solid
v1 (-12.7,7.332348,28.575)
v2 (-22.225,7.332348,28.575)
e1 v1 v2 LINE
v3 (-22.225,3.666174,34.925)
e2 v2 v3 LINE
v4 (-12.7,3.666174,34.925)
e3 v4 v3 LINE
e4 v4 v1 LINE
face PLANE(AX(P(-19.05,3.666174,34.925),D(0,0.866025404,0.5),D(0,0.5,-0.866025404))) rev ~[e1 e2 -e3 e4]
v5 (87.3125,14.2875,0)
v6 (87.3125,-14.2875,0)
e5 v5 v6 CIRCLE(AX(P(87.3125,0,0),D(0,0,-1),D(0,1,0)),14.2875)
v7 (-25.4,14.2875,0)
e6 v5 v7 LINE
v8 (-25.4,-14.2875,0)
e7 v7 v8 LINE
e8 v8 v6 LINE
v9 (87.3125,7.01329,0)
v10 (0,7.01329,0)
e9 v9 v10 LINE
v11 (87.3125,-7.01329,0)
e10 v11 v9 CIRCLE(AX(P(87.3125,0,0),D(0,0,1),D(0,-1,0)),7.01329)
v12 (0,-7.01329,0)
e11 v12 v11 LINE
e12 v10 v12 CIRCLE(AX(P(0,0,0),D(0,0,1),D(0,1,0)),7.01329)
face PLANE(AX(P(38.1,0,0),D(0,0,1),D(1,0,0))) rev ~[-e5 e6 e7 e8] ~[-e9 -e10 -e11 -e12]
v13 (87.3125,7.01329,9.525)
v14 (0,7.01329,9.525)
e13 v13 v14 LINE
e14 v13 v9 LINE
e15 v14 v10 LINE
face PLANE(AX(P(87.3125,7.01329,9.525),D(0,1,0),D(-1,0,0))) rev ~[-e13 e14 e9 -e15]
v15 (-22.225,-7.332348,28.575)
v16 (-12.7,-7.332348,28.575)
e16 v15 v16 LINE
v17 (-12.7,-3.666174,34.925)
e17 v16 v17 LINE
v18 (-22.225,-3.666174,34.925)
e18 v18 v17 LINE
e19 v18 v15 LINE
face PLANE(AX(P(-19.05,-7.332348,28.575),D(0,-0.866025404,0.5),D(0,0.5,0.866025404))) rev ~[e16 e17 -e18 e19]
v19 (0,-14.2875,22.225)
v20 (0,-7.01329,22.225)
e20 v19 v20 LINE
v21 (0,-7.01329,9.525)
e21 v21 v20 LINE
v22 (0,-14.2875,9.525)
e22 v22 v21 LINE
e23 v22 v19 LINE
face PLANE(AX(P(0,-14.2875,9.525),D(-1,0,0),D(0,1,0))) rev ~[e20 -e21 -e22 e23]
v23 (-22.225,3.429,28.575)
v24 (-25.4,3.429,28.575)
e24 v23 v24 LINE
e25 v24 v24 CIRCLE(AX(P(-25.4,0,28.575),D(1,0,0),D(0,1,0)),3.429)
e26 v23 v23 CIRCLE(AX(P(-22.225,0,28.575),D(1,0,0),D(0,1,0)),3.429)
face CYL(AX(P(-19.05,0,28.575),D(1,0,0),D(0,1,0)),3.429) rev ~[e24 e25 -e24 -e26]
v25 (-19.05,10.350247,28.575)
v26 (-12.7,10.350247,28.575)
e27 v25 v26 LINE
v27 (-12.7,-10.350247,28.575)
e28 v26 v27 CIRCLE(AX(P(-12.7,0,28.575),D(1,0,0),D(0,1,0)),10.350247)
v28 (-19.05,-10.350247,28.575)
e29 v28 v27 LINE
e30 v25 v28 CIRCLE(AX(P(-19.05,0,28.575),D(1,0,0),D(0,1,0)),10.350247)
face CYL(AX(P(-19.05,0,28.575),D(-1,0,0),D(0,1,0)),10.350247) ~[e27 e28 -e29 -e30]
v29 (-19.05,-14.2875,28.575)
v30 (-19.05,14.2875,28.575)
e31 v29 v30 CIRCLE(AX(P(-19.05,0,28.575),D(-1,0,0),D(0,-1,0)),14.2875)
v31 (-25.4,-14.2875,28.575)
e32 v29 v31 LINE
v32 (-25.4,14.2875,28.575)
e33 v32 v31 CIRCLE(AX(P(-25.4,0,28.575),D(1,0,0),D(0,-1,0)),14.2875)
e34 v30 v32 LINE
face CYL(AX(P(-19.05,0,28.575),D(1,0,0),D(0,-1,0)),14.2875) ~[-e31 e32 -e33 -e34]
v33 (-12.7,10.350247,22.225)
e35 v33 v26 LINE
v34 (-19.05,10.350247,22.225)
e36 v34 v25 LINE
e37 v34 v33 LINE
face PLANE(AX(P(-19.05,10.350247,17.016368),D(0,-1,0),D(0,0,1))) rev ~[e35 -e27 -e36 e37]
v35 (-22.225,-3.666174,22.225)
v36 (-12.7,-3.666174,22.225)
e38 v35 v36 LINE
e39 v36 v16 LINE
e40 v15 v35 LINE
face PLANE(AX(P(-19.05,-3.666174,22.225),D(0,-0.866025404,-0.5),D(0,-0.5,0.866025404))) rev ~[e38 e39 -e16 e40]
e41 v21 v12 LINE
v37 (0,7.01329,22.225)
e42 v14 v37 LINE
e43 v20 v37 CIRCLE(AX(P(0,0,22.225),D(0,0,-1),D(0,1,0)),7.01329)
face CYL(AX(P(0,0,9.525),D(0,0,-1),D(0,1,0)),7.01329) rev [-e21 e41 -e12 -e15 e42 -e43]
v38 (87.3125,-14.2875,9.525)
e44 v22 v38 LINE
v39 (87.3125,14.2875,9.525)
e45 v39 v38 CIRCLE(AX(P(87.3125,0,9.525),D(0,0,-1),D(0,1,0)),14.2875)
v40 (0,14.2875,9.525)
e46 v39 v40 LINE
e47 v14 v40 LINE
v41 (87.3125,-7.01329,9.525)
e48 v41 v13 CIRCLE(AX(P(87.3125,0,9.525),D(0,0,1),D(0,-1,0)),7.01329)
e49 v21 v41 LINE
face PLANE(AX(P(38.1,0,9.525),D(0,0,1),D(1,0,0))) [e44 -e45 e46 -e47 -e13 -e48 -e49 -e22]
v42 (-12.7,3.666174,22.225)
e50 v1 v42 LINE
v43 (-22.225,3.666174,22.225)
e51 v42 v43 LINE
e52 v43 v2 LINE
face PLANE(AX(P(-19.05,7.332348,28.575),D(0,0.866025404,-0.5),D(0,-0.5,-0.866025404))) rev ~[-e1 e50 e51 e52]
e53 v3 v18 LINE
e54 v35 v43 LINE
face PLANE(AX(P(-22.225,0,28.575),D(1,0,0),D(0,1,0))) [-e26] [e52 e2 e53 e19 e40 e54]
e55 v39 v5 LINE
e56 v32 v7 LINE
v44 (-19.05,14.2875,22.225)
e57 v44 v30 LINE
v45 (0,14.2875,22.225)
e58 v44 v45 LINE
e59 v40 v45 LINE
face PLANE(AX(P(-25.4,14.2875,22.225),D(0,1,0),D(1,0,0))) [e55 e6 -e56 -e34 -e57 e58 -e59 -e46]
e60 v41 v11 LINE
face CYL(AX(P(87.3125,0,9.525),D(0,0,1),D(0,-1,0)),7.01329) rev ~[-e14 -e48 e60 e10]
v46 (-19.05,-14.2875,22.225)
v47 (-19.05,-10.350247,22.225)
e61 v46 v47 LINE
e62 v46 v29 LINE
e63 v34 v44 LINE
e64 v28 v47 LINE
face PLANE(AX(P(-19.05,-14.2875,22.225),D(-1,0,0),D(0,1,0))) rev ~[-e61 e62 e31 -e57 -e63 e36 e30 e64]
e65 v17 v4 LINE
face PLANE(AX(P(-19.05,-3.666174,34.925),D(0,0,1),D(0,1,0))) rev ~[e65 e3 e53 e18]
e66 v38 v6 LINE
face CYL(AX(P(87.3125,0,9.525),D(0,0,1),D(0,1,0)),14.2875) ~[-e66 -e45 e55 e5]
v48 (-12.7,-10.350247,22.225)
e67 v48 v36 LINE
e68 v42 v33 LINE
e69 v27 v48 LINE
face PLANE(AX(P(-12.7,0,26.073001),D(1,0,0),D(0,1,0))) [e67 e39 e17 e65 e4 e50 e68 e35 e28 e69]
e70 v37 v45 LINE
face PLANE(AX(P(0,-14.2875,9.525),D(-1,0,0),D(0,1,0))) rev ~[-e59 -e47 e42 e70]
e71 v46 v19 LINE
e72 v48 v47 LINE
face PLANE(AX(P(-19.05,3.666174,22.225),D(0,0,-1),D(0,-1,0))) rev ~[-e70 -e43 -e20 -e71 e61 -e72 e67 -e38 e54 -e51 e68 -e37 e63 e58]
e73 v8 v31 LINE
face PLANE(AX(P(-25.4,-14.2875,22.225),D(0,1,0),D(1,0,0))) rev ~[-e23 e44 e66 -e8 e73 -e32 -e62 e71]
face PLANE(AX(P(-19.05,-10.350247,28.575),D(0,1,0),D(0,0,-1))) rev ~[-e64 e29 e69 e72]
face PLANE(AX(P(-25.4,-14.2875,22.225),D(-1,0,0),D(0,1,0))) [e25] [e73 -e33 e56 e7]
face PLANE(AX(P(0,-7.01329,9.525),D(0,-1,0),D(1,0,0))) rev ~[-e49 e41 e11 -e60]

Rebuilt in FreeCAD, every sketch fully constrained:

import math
import FreeCAD as App
import Part
import Sketcher
Q = App.Units.Quantity


def add_polygon(sketch, points):
    """Adds a closed chain of lines whose ends are joined by coincident constraints."""
    first, n = sketch.GeometryCount, len(points)
    for a, b in zip(points, points[1:] + points[:1]):
        sketch.addGeometry(Part.LineSegment(App.Vector(*a, 0), App.Vector(*b, 0)), False)
    for i in range(n):
        sketch.addConstraint(Sketcher.Constraint("Coincident", first + i, 2, first + (i + 1) % n, 1))

doc = App.newDocument("Part")
body = doc.addObject("PartDesign::Body", "Body")

# Sketch on XY plane
sketch1 = body.newObject("Sketcher::SketchObject", "Sketch")
sketch1.AttachmentSupport = (doc.getObject("XY_Plane"), [""])
sketch1.MapMode = "FlatFace"
add_polygon(sketch1, [(101.6, 14.2875), (-25.4, 14.2875), (-25.4, -14.2875), (101.6, -14.2875)])  # lines 0-3
sketch1.addConstraint(Sketcher.Constraint("Horizontal", 0))
sketch1.addConstraint(Sketcher.Constraint("Vertical", 1))
sketch1.addConstraint(Sketcher.Constraint("Horizontal", 2))
sketch1.addConstraint(Sketcher.Constraint("Vertical", 3))
sketch1.addConstraint(Sketcher.Constraint("DistanceX", 0, 2, 0, 1, Q("5 in")))
sketch1.addConstraint(Sketcher.Constraint("DistanceX", 0, 2, -1, 1, Q("1 in")))
sketch1.addConstraint(Sketcher.Constraint("DistanceY", 1, 2, 1, 1, Q("1.125 in")))
sketch1.addConstraint(Sketcher.Constraint("DistanceY", -1, 1, 0, 2, Q("0.5625 in")))
pad1 = body.newObject("PartDesign::Pad", "Pad")
pad1.Profile = sketch1
pad1.Length = Q("0.375 in")

# Sketch on XY plane
sketch2 = body.newObject("Sketcher::SketchObject", "Sketch001")
sketch2.AttachmentSupport = (doc.getObject("XY_Plane"), [""])
sketch2.MapMode = "FlatFace"
sketch2.AttachmentOffset = App.Placement(App.Vector(0, 0, 0.375 * 25.4), App.Rotation())
add_polygon(sketch2, [(-25.4, 14.2875), (-25.4, -14.2875), (0, -14.2875), (0, 14.2875)])  # lines 0-3
sketch2.addConstraint(Sketcher.Constraint("Vertical", 0))
sketch2.addConstraint(Sketcher.Constraint("Horizontal", 1))
sketch2.addConstraint(Sketcher.Constraint("Vertical", 2))
sketch2.addConstraint(Sketcher.Constraint("Horizontal", 3))
sketch2.addConstraint(Sketcher.Constraint("Symmetric", 1, 2, 2, 2, -1, 1))
sketch2.addConstraint(Sketcher.Constraint("DistanceX", 1, 1, 1, 2, Q("1 in")))
sketch2.addConstraint(Sketcher.Constraint("DistanceY", 0, 2, 0, 1, Q("1.125 in")))
pad2 = body.newObject("PartDesign::Pad", "Pad001")
pad2.Profile = sketch2
pad2.Length = Q("0.5 in")

# Sketch on XY plane
sketch3 = body.newObject("Sketcher::SketchObject", "Sketch002")
sketch3.AttachmentSupport = (doc.getObject("XY_Plane"), [""])
sketch3.MapMode = "FlatFace"
sketch3.AttachmentOffset = App.Placement(App.Vector(0, 0, 0.875 * 25.4), App.Rotation())
add_polygon(sketch3, [(-25.4, 14.2875), (-25.4, -14.2875), (-19.05, -14.2875), (-19.05, 14.2875)])  # lines 0-3
sketch3.addConstraint(Sketcher.Constraint("Vertical", 0))
sketch3.addConstraint(Sketcher.Constraint("Horizontal", 1))
sketch3.addConstraint(Sketcher.Constraint("Vertical", 2))
sketch3.addConstraint(Sketcher.Constraint("Horizontal", 3))
sketch3.addConstraint(Sketcher.Constraint("DistanceX", 0, 2, -1, 1, Q("1 in")))
sketch3.addConstraint(Sketcher.Constraint("DistanceX", 1, 1, 1, 2, Q("0.25 in")))
sketch3.addConstraint(Sketcher.Constraint("DistanceY", 0, 2, 0, 1, Q("1.125 in")))
sketch3.addConstraint(Sketcher.Constraint("DistanceY", 0, 2, -1, 1, Q("0.5625 in")))
pad3 = body.newObject("PartDesign::Pad", "Pad002")
pad3.Profile = sketch3
pad3.Length = Q("1 in")

# Sketch on YZ plane
sketch4 = body.newObject("Sketcher::SketchObject", "Sketch003")
sketch4.AttachmentSupport = (doc.getObject("YZ_Plane"), [""])
sketch4.MapMode = "FlatFace"
sketch4.AttachmentOffset = App.Placement(App.Vector(0, 0, -0.75 * 25.4), App.Rotation())
sketch4.addGeometry(Part.LineSegment(App.Vector(10.350247, 17.016368, 0), App.Vector(10.350247, 28.575, 0)), False)  # 0
sketch4.addGeometry(Part.ArcOfCircle(Part.Circle(App.Vector(0, 28.575, 0), App.Vector(0, 0, 1), 10.350247), math.radians(0), math.radians(180)), False)  # 1
sketch4.addGeometry(Part.LineSegment(App.Vector(-10.350247, 28.575, 0), App.Vector(-10.350247, 17.016368, 0)), False)  # 2
sketch4.addGeometry(Part.LineSegment(App.Vector(-10.350247, 17.016368, 0), App.Vector(10.350247, 17.016368, 0)), False)  # 3
add_polygon(sketch4, [(3.666174, 34.925), (7.332348, 28.575), (3.666174, 22.225), (-3.666174, 22.225), (-7.332348, 28.575), (-3.666174, 34.925)])  # lines 4-9
sketch4.addConstraint(Sketcher.Constraint("Tangent", 0, 2, 1, 1))
sketch4.addConstraint(Sketcher.Constraint("Tangent", 1, 2, 2, 1))
sketch4.addConstraint(Sketcher.Constraint("Coincident", 2, 2, 3, 1))
sketch4.addConstraint(Sketcher.Constraint("Coincident", 3, 2, 0, 1))
sketch4.addConstraint(Sketcher.Constraint("Vertical", 0))
sketch4.addConstraint(Sketcher.Constraint("Vertical", 2))
sketch4.addConstraint(Sketcher.Constraint("Horizontal", 3))
sketch4.addConstraint(Sketcher.Constraint("Horizontal", 6))
sketch4.addConstraint(Sketcher.Constraint("Horizontal", 9))
sketch4.addConstraint(Sketcher.Constraint("Symmetric", 4, 2, 7, 2, -2))
sketch4.addConstraint(Sketcher.Constraint("PointOnObject", 1, 3, -2))
sketch4.addConstraint(Sketcher.Constraint("Parallel", 4, 7))
sketch4.addConstraint(Sketcher.Constraint("Parallel", 5, 8))
sketch4.addConstraint(Sketcher.Constraint("Horizontal", 1, 2, 4, 2))
sketch4.addConstraint(Sketcher.Constraint("Vertical", 6, 2, 8, 2))
sketch4.addConstraint(Sketcher.Constraint("Vertical", 5, 2, 9, 2))
sketch4.addConstraint(Sketcher.Constraint("Angle", 4, Q("-60 deg")))
sketch4.addConstraint(Sketcher.Constraint("DistanceY", 6, 2, 8, 2, Q("0.5 in")))
sketch4.addConstraint(Sketcher.Constraint("DistanceY", -1, 1, 1, 3, Q("1.125 in")))
sketch4.addConstraint(Sketcher.Constraint("Radius", 1, Q("10.350247 mm")))
sketch4.addConstraint(Sketcher.Constraint("DistanceX", 6, 2, 6, 1, Q("7.332348 mm")))
sketch4.addConstraint(Sketcher.Constraint("DistanceY", 0, 1, 0, 2, Q("11.558632 mm")))
pad4 = body.newObject("PartDesign::Pad", "Pad003")
pad4.Profile = sketch4
pad4.Length = Q("0.25 in")

# Sketch on YZ plane
sketch5 = body.newObject("Sketcher::SketchObject", "Sketch004")
sketch5.AttachmentSupport = (doc.getObject("YZ_Plane"), [""])
sketch5.MapMode = "FlatFace"
sketch5.AttachmentOffset = App.Placement(App.Vector(0, 0, -0.75 * 25.4), App.Rotation())
sketch5.addGeometry(Part.LineSegment(App.Vector(-14.2875, 47.625, 0), App.Vector(-14.2875, 28.575, 0)), False)
sketch5.addGeometry(Part.ArcOfCircle(Part.Circle(App.Vector(0, 28.575, 0), App.Vector(0, 0, 1), 14.2875), math.radians(0), math.radians(180)), False)
sketch5.addGeometry(Part.LineSegment(App.Vector(14.2875, 28.575, 0), App.Vector(14.2875, 47.625, 0)), False)
sketch5.addGeometry(Part.LineSegment(App.Vector(14.2875, 47.625, 0), App.Vector(-14.2875, 47.625, 0)), False)
sketch5.addGeometry(Part.Circle(App.Vector(0, 28.575, 0), App.Vector(0, 0, 1), 3.429), False)
sketch5.addConstraint(Sketcher.Constraint("Tangent", 0, 2, 1, 2))
sketch5.addConstraint(Sketcher.Constraint("Tangent", 1, 1, 2, 1))
sketch5.addConstraint(Sketcher.Constraint("Coincident", 2, 2, 3, 1))
sketch5.addConstraint(Sketcher.Constraint("Coincident", 3, 2, 0, 1))
sketch5.addConstraint(Sketcher.Constraint("Vertical", 0))
sketch5.addConstraint(Sketcher.Constraint("Vertical", 2))
sketch5.addConstraint(Sketcher.Constraint("Horizontal", 3))
sketch5.addConstraint(Sketcher.Constraint("Coincident", 4, 3, 1, 3))
sketch5.addConstraint(Sketcher.Constraint("PointOnObject", 1, 3, -2))
sketch5.addConstraint(Sketcher.Constraint("Diameter", 4, Q("0.27 in")))
sketch5.addConstraint(Sketcher.Constraint("Radius", 1, Q("0.5625 in")))
sketch5.addConstraint(Sketcher.Constraint("DistanceY", 0, 2, 0, 1, Q("0.75 in")))
sketch5.addConstraint(Sketcher.Constraint("DistanceY", -1, 1, 1, 3, Q("1.125 in")))
pocket1 = body.newObject("PartDesign::Pocket", "Pocket")
pocket1.Profile = sketch5
pocket1.Length = Q("1 in")

# Sketch on XY plane
sketch6 = body.newObject("Sketcher::SketchObject", "Sketch005")
sketch6.AttachmentSupport = (doc.getObject("XY_Plane"), [""])
sketch6.MapMode = "FlatFace"
sketch6.AttachmentOffset = App.Placement(App.Vector(0, 0, 0.375 * 25.4), App.Rotation())
sketch6.addGeometry(Part.LineSegment(App.Vector(87.3125, 7.01329, 0), App.Vector(0, 7.01329, 0)), False)
sketch6.addGeometry(Part.ArcOfCircle(Part.Circle(App.Vector(0, 0, 0), App.Vector(0, 0, 1), 7.01329), math.radians(90), math.radians(270)), False)
sketch6.addGeometry(Part.LineSegment(App.Vector(0, -7.01329, 0), App.Vector(87.3125, -7.01329, 0)), False)
sketch6.addGeometry(Part.ArcOfCircle(Part.Circle(App.Vector(87.3125, 0, 0), App.Vector(0, 0, 1), 7.01329), math.radians(-90), math.radians(90)), False)
sketch6.addGeometry(Part.LineSegment(App.Vector(103.539944, 14.2875, 0), App.Vector(87.3125, 14.2875, 0)), False)
sketch6.addGeometry(Part.ArcOfCircle(Part.Circle(App.Vector(87.3125, 0, 0), App.Vector(0, 0, 1), 14.2875), math.radians(-90), math.radians(90)), False)
sketch6.addGeometry(Part.LineSegment(App.Vector(87.3125, -14.2875, 0), App.Vector(103.539944, -17.252695, 0)), False)
sketch6.addGeometry(Part.LineSegment(App.Vector(103.539944, -17.252695, 0), App.Vector(103.539944, 14.2875, 0)), False)
sketch6.addConstraint(Sketcher.Constraint("Tangent", 0, 2, 1, 1))
sketch6.addConstraint(Sketcher.Constraint("Tangent", 1, 2, 2, 1))
sketch6.addConstraint(Sketcher.Constraint("Tangent", 2, 2, 3, 1))
sketch6.addConstraint(Sketcher.Constraint("Tangent", 3, 2, 0, 1))
sketch6.addConstraint(Sketcher.Constraint("Tangent", 4, 2, 5, 2))
sketch6.addConstraint(Sketcher.Constraint("Coincident", 5, 1, 6, 1))
sketch6.addConstraint(Sketcher.Constraint("Coincident", 6, 2, 7, 1))
sketch6.addConstraint(Sketcher.Constraint("Coincident", 7, 2, 4, 1))
sketch6.addConstraint(Sketcher.Constraint("Horizontal", 0))
sketch6.addConstraint(Sketcher.Constraint("Horizontal", 2))
sketch6.addConstraint(Sketcher.Constraint("Horizontal", 4))
sketch6.addConstraint(Sketcher.Constraint("Vertical", 7))
sketch6.addConstraint(Sketcher.Constraint("Coincident", 1, 3, -1, 1))
sketch6.addConstraint(Sketcher.Constraint("Coincident", 5, 3, 3, 3))
sketch6.addConstraint(Sketcher.Constraint("Vertical", 4, 2, 5, 1))
sketch6.addConstraint(Sketcher.Constraint("Radius", 5, Q("0.5625 in")))
sketch6.addConstraint(Sketcher.Constraint("DistanceX", 0, 2, 0, 1, Q("3.4375 in")))
sketch6.addConstraint(Sketcher.Constraint("Radius", 1, Q("7.01329 mm")))
sketch6.addConstraint(Sketcher.Constraint("Distance", 6, Q("16.49613 mm")))
sketch6.addConstraint(Sketcher.Constraint("DistanceX", 4, 2, 4, 1, Q("16.227444 mm")))
pocket2 = body.newObject("PartDesign::Pocket", "Pocket001")
pocket2.Profile = sketch6
pocket2.Type = "ThroughAll"
pocket2.Midplane = True

# Sketch on YZ plane
sketch7 = body.newObject("Sketcher::SketchObject", "Sketch006")
sketch7.AttachmentSupport = (doc.getObject("YZ_Plane"), [""])
sketch7.MapMode = "FlatFace"
sketch7.AttachmentOffset = App.Placement(App.Vector(0, 0, -0.75 * 25.4), App.Rotation())
add_polygon(sketch7, [(3.666174, 22.225), (7.332348, 28.575), (3.666174, 34.925), (-3.666174, 34.925), (-7.332348, 28.575), (-3.666174, 22.225)])  # lines 0-5
sketch7.addConstraint(Sketcher.Constraint("Horizontal", 2))
sketch7.addConstraint(Sketcher.Constraint("Horizontal", 5))
sketch7.addConstraint(Sketcher.Constraint("Symmetric", 0, 2, 3, 2, -2))
sketch7.addConstraint(Sketcher.Constraint("Parallel", 0, 3))
sketch7.addConstraint(Sketcher.Constraint("Parallel", 1, 4))
sketch7.addConstraint(Sketcher.Constraint("Vertical", 2, 2, 4, 2))
sketch7.addConstraint(Sketcher.Constraint("Vertical", 1, 2, 5, 2))
sketch7.addConstraint(Sketcher.Constraint("Angle", 0, Q("60 deg")))
sketch7.addConstraint(Sketcher.Constraint("DistanceY", 4, 2, 2, 2, Q("0.5 in")))
sketch7.addConstraint(Sketcher.Constraint("DistanceY", -1, 1, 0, 2, Q("1.125 in")))
sketch7.addConstraint(Sketcher.Constraint("DistanceX", 2, 2, 2, 1, Q("7.332348 mm")))
pocket3 = body.newObject("PartDesign::Pocket", "Pocket002")
pocket3.Profile = sketch7
pocket3.Length = Q("0.125 in")

doc.recompute()
